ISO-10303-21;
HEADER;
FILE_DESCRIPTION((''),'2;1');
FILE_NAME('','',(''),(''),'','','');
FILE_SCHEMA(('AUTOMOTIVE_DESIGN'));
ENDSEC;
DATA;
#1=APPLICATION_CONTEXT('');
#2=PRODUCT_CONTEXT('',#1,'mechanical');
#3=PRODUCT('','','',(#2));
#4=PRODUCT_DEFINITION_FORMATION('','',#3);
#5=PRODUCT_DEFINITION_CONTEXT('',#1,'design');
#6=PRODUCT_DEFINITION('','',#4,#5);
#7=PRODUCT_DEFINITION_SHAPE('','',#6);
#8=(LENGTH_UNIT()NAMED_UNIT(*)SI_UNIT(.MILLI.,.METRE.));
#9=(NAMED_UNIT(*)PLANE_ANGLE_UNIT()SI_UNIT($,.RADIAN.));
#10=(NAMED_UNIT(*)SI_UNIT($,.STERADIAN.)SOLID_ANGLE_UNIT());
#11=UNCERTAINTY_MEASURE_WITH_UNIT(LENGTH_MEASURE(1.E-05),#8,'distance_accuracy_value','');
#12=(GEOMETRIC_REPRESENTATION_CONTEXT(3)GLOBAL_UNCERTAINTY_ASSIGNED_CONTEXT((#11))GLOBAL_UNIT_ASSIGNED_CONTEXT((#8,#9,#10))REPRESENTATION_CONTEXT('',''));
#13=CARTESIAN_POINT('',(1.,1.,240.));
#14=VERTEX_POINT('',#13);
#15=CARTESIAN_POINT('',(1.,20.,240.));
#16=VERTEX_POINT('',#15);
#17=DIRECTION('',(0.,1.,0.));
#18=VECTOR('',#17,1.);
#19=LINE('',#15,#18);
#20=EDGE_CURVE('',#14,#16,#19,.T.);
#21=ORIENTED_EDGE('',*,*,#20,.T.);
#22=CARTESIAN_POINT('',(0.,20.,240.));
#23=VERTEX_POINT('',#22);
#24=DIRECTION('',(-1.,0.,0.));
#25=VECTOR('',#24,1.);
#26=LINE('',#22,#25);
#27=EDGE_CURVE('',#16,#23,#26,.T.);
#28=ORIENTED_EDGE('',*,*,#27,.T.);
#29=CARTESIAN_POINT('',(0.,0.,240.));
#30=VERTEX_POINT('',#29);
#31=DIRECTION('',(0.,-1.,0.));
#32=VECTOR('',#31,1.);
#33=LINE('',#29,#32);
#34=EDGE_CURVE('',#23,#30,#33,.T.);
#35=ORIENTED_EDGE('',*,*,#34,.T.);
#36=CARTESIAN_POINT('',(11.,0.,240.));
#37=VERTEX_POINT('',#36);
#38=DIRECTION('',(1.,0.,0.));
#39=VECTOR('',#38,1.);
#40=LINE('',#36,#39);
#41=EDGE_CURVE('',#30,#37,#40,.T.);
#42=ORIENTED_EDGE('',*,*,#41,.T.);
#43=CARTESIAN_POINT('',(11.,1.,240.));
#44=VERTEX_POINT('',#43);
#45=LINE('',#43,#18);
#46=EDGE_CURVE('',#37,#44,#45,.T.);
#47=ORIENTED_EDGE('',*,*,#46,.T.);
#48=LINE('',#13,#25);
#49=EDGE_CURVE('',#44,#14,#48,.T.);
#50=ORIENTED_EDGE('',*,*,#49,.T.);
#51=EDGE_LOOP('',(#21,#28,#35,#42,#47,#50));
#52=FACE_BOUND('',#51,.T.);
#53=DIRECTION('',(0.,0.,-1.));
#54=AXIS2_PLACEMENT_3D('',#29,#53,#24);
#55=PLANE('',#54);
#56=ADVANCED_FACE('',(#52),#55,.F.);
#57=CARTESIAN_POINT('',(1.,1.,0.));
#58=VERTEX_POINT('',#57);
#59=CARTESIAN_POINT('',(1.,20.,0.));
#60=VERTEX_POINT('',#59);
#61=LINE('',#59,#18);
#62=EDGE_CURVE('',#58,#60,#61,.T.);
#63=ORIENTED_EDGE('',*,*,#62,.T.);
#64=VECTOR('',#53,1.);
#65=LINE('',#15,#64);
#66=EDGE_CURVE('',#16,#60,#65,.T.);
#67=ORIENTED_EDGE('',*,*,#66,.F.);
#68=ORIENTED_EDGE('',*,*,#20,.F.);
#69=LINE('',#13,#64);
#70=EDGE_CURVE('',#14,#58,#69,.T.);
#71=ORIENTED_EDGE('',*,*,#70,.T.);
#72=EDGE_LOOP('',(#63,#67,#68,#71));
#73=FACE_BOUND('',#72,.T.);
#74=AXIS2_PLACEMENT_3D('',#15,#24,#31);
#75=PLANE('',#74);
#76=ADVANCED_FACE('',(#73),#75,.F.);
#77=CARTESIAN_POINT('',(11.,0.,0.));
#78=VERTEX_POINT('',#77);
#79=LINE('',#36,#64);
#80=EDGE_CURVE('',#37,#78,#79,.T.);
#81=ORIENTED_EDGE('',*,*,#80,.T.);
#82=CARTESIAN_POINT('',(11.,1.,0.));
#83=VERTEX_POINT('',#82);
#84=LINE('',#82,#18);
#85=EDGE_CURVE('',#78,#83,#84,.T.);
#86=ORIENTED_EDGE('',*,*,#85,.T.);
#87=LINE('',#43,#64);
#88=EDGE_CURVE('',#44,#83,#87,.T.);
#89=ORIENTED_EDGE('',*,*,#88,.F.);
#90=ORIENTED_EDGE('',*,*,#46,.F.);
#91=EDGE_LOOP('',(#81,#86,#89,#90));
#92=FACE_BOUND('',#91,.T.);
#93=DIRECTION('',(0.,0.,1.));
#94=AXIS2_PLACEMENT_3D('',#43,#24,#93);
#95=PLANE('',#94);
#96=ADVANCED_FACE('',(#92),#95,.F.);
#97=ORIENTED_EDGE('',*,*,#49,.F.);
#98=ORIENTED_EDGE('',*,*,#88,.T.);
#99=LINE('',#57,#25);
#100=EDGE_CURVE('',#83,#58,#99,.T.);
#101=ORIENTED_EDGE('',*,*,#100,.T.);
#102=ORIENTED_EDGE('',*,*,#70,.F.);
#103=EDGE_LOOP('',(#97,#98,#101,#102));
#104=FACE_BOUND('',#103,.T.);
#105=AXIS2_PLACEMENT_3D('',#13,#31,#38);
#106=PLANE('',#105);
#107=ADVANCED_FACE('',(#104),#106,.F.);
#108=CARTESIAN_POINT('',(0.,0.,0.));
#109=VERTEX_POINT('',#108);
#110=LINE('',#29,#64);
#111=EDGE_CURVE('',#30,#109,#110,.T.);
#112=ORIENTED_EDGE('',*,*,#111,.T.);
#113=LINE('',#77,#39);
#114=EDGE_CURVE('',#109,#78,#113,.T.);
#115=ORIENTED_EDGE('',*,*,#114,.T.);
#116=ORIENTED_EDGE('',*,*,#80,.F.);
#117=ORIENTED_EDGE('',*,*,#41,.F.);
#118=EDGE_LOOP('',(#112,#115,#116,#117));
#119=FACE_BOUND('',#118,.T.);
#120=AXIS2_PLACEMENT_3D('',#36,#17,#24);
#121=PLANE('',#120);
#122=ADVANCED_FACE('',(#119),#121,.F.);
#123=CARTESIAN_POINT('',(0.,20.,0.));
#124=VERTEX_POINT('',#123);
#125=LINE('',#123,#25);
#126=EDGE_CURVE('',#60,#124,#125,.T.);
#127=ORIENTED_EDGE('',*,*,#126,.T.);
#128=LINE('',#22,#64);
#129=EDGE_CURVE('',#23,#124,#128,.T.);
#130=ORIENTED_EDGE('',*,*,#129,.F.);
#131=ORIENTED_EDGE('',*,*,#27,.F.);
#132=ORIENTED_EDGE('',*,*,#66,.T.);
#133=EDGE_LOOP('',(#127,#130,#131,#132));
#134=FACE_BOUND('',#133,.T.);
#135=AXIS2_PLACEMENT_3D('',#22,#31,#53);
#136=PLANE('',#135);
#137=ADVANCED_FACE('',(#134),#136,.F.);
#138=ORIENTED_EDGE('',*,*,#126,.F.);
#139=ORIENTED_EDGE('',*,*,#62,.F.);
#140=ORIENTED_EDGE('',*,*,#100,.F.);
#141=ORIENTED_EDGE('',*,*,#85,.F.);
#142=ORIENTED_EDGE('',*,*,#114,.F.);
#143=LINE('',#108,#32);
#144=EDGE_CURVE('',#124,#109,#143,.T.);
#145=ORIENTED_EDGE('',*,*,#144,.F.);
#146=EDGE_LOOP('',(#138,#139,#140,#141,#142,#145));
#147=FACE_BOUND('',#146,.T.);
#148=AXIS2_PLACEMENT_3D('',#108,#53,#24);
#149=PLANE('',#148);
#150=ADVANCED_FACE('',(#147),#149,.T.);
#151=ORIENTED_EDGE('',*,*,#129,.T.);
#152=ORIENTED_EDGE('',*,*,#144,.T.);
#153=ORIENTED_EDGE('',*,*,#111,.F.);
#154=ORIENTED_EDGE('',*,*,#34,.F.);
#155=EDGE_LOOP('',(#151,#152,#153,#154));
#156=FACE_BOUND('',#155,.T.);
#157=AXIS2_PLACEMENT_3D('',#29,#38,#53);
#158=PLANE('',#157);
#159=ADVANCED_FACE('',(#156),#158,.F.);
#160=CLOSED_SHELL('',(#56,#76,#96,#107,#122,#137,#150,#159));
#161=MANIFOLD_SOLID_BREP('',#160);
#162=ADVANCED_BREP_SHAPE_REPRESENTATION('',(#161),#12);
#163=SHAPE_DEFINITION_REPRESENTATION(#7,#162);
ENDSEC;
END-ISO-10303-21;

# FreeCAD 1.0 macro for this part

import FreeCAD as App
import Part
import Sketcher
Q = App.Units.Quantity


def add_polygon(sketch, points):
    """Adds a closed chain of lines whose ends are joined by coincident constraints."""
    first, n = sketch.GeometryCount, len(points)
    for a, b in zip(points, points[1:] + points[:1]):
        sketch.addGeometry(Part.LineSegment(App.Vector(*a, 0), App.Vector(*b, 0)), False)
    for i in range(n):
        sketch.addConstraint(Sketcher.Constraint("Coincident", first + i, 2, first + (i + 1) % n, 1))

doc = App.newDocument("Part")
body = doc.addObject("PartDesign::Body", "Body")

# Sketch on XY plane
sketch1 = body.newObject("Sketcher::SketchObject", "Sketch")
sketch1.AttachmentSupport = (doc.getObject("XY_Plane"), [""])
sketch1.MapMode = "FlatFace"
add_polygon(sketch1, [(0, 20), (0, 0), (11, 0), (11, 1), (1, 1), (1, 20)])  # lines 0-5
sketch1.addConstraint([
    Sketcher.Constraint("Vertical", 0),
    Sketcher.Constraint("Horizontal", 1),
    Sketcher.Constraint("Vertical", 2),
    Sketcher.Constraint("Horizontal", 3),
    Sketcher.Constraint("Vertical", 4),
    Sketcher.Constraint("Horizontal", 5),
    Sketcher.Constraint("Coincident", 0, 2, -1, 1),
    Sketcher.Constraint("Equal", 5, 2),
    Sketcher.Constraint("DistanceX", 1, 1, 1, 2, Q("11 mm")),
    Sketcher.Constraint("DistanceX", 3, 2, 3, 1, Q("10 mm")),
    Sketcher.Constraint("DistanceY", 0, 2, 0, 1, Q("20 mm")),
])
pad1 = body.newObject("PartDesign::Pad", "Pad")
pad1.Profile = sketch1
pad1.Length = 240

doc.recompute()
